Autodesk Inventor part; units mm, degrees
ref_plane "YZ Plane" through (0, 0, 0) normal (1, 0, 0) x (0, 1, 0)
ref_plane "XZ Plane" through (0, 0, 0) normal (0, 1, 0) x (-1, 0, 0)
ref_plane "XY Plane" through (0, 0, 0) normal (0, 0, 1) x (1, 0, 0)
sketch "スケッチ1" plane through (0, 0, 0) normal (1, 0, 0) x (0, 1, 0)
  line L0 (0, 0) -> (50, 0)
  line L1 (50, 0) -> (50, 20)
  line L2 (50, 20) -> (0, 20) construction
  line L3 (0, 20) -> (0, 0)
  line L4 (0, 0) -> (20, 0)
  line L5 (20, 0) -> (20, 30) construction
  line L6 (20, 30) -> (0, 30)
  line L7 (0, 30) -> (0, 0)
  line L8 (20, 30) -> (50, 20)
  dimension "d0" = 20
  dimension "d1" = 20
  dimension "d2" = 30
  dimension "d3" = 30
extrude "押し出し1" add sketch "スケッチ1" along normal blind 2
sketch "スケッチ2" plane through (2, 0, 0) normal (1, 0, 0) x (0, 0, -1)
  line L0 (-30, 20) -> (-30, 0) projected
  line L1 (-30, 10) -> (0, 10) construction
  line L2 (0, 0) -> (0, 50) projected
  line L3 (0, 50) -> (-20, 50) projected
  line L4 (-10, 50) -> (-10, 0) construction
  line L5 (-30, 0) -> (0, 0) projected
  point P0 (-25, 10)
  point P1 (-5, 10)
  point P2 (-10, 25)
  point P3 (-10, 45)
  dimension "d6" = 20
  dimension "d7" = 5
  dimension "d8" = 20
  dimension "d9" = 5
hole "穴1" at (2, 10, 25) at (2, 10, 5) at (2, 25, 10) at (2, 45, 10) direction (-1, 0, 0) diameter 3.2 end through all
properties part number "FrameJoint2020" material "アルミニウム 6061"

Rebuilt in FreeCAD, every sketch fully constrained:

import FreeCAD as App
import Part
import Sketcher

V = App.Vector
Q = App.Units.Quantity

doc = App.newDocument("Part")
body = doc.addObject("PartDesign::Body", "Body")

# Sketch on YZ plane
sketch1 = body.newObject("Sketcher::SketchObject", "Sketch")
sketch1.AttachmentSupport = (doc.getObject("YZ_Plane"), [""])
sketch1.MapMode = "FlatFace"
sketch1.addGeometry(Part.LineSegment(V(0, 30, 0), V(0, 0, 0)), False)
sketch1.addGeometry(Part.LineSegment(V(0, 0, 0), V(50, 0, 0)), False)
sketch1.addGeometry(Part.LineSegment(V(50, 0, 0), V(50, 20, 0)), False)
sketch1.addGeometry(Part.LineSegment(V(50, 20, 0), V(20, 30, 0)), False)
sketch1.addGeometry(Part.LineSegment(V(20, 30, 0), V(0, 30, 0)), False)
sketch1.addConstraint(Sketcher.Constraint("Coincident", 0, 2, 1, 1))
sketch1.addConstraint(Sketcher.Constraint("Coincident", 1, 2, 2, 1))
sketch1.addConstraint(Sketcher.Constraint("Coincident", 2, 2, 3, 1))
sketch1.addConstraint(Sketcher.Constraint("Coincident", 3, 2, 4, 1))
sketch1.addConstraint(Sketcher.Constraint("Coincident", 4, 2, 0, 1))
sketch1.addConstraint(Sketcher.Constraint("Vertical", 0))
sketch1.addConstraint(Sketcher.Constraint("Horizontal", 1))
sketch1.addConstraint(Sketcher.Constraint("Vertical", 2))
sketch1.addConstraint(Sketcher.Constraint("Horizontal", 4))
sketch1.addConstraint(Sketcher.Constraint("Coincident", 0, 2, -1, 1))
sketch1.addConstraint(Sketcher.Constraint("Equal", 4, 2))
sketch1.addConstraint(Sketcher.Constraint("DistanceX", 4, 2, 4, 1, Q("20 mm")))
sketch1.addConstraint(Sketcher.Constraint("DistanceY", 0, 2, 0, 1, Q("30 mm")))
sketch1.addConstraint(Sketcher.Constraint("DistanceX", 3, 2, 2, 2, Q("30 mm")))
pad1 = body.newObject("PartDesign::Pad", "Pad")
pad1.Profile = sketch1
pad1.Length = 2

# Sketch on YZ plane
sketch2 = body.newObject("Sketcher::SketchObject", "Sketch001")
sketch2.AttachmentSupport = (doc.getObject("YZ_Plane"), [""])
sketch2.MapMode = "FlatFace"
sketch2.AttachmentOffset = App.Placement(V(0, 0, 2), App.Rotation())
sketch2.addGeometry(Part.Circle(V(10, 25, 0), V(0, 0, 1), 1.6), False)
sketch2.addGeometry(Part.Circle(V(10, 5, 0), V(0, 0, 1), 1.6), False)
sketch2.addGeometry(Part.Circle(V(25, 10, 0), V(0, 0, 1), 1.6), False)
sketch2.addGeometry(Part.Circle(V(45, 10, 0), V(0, 0, 1), 1.6), False)
sketch2.addConstraint(Sketcher.Constraint("Equal", 0, 1))
sketch2.addConstraint(Sketcher.Constraint("Equal", 1, 2))
sketch2.addConstraint(Sketcher.Constraint("Equal", 2, 3))
sketch2.addConstraint(Sketcher.Constraint("Horizontal", 2, 3, 3, 3))
sketch2.addConstraint(Sketcher.Constraint("Vertical", 0, 3, 1, 3))
sketch2.addConstraint(Sketcher.Constraint("Diameter", 0, Q("3.2 mm")))
sketch2.addConstraint(Sketcher.Constraint("DistanceX", -1, 1, 0, 3, Q("10 mm")))
sketch2.addConstraint(Sketcher.Constraint("DistanceY", -1, 1, 0, 3, Q("25 mm")))
sketch2.addConstraint(Sketcher.Constraint("DistanceY", -1, 1, 1, 3, Q("5 mm")))
sketch2.addConstraint(Sketcher.Constraint("DistanceX", -1, 1, 2, 3, Q("25 mm")))
sketch2.addConstraint(Sketcher.Constraint("DistanceY", -1, 1, 2, 3, Q("10 mm")))
sketch2.addConstraint(Sketcher.Constraint("DistanceX", -1, 1, 3, 3, Q("45 mm")))
doc.recompute()
hole = body.newObject("PartDesign::Hole", "Hole")
hole.Profile = sketch2
hole.ThreadType = "None"
hole.Diameter = 3.2
hole.DepthType = "ThroughAll"

doc.recompute()
